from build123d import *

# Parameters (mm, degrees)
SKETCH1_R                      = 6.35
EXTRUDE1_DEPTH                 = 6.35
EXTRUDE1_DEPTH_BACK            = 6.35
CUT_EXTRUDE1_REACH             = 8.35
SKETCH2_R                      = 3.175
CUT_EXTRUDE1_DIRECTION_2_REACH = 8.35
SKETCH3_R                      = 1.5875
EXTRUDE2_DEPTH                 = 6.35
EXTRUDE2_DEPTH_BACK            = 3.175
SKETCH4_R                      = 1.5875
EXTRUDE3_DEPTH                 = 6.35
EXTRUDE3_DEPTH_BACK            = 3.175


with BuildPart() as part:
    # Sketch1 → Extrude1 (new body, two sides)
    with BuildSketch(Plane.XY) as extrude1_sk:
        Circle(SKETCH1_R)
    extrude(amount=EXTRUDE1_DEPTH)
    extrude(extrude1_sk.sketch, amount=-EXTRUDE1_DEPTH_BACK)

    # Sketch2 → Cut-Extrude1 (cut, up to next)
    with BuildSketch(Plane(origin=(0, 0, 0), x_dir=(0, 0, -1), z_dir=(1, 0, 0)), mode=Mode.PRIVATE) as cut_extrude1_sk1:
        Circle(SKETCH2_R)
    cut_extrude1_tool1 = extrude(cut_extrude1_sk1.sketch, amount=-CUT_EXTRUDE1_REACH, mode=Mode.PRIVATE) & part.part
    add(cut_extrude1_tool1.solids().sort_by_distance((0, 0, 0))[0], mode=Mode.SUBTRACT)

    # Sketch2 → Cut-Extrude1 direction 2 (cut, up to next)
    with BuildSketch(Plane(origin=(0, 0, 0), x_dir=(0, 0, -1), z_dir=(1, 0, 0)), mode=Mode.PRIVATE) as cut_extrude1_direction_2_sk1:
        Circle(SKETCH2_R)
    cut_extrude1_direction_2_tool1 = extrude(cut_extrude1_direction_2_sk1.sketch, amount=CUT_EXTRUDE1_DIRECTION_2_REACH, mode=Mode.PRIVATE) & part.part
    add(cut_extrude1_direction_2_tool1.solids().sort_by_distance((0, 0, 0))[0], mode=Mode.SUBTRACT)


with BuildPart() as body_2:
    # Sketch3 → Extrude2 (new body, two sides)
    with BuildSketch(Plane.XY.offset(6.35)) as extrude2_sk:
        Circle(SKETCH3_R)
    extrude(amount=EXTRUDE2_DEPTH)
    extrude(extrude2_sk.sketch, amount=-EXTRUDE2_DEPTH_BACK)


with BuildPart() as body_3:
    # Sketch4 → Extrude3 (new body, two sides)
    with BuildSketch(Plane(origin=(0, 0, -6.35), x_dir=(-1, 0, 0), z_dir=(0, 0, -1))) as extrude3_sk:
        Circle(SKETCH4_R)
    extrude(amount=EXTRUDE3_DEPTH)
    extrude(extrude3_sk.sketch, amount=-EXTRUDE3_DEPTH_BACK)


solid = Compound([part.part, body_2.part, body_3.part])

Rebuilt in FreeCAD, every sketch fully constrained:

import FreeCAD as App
import Part
import Sketcher

V = App.Vector
Q = App.Units.Quantity

doc = App.newDocument("Part")
body = doc.addObject("PartDesign::Body", "Body")

# Sketch on XY plane
sketch1 = body.newObject("Sketcher::SketchObject", "Sketch")
sketch1.AttachmentSupport = (doc.getObject("XY_Plane"), [""])
sketch1.MapMode = "FlatFace"
sketch1.addGeometry(Part.Circle(V(0, 0, 0), V(0, 0, 1), 6.35), False)
sketch1.addConstraint([
    Sketcher.Constraint("Coincident", 0, 3, -1, 1),
    Sketcher.Constraint("Diameter", 0, Q("0.5 in")),
])
pad1 = body.newObject("PartDesign::Pad", "Pad")
pad1.Profile = sketch1
pad1.Type = "TwoLengths"
pad1.Length = Q("0.25 in")
pad1.Length2 = Q("0.25 in")

# Sketch on YZ plane
sketch2 = body.newObject("Sketcher::SketchObject", "Sketch001")
sketch2.AttachmentSupport = (doc.getObject("YZ_Plane"), [""])
sketch2.MapMode = "FlatFace"
sketch2.addGeometry(Part.Circle(V(0, 0, 0), V(0, 0, 1), 3.175), False)
sketch2.addConstraint([
    Sketcher.Constraint("Coincident", 0, 3, -1, 1),
    Sketcher.Constraint("Diameter", 0, Q("0.25 in")),
])
pocket1 = body.newObject("PartDesign::Pocket", "Pocket")
pocket1.Profile = sketch2
pocket1.Type = "UpToFirst"

# Sketch on YZ plane
sketch3 = body.newObject("Sketcher::SketchObject", "Sketch002")
sketch3.AttachmentSupport = (doc.getObject("YZ_Plane"), [""])
sketch3.MapMode = "FlatFace"
sketch3.addGeometry(Part.Circle(V(0, 0, 0), V(0, 0, 1), 3.175), False)
sketch3.addConstraint([
    Sketcher.Constraint("Coincident", 0, 3, -1, 1),
    Sketcher.Constraint("Diameter", 0, Q("0.25 in")),
])
pocket2 = body.newObject("PartDesign::Pocket", "Pocket001")
pocket2.Profile = sketch3
pocket2.Length = Q("0.25 in")
pocket2.Reversed = True
body2 = doc.addObject("PartDesign::Body", "Body001")

# Sketch on XY plane
sketch4 = body2.newObject("Sketcher::SketchObject", "Sketch003")
sketch4.AttachmentSupport = (doc.getObject("XY_Plane001"), [""])
sketch4.MapMode = "FlatFace"
sketch4.AttachmentOffset = App.Placement(V(0, 0, 0.25 * 25.4), App.Rotation())
sketch4.addGeometry(Part.Circle(V(0, 0, 0), V(0, 0, 1), 1.5875), False)
sketch4.addConstraint([
    Sketcher.Constraint("Coincident", 0, 3, -1, 1),
    Sketcher.Constraint("Diameter", 0, Q("0.125 in")),
])
pad2 = body2.newObject("PartDesign::Pad", "Pad001")
pad2.Profile = sketch4
pad2.Type = "TwoLengths"
pad2.Length = Q("0.25 in")
pad2.Length2 = Q("0.125 in")
body3 = doc.addObject("PartDesign::Body", "Body002")

# Sketch on XY plane
sketch5 = body3.newObject("Sketcher::SketchObject", "Sketch004")
sketch5.AttachmentSupport = (doc.getObject("XY_Plane002"), [""])
sketch5.MapMode = "FlatFace"
sketch5.AttachmentOffset = App.Placement(V(0, 0, -0.25 * 25.4), App.Rotation())
sketch5.addGeometry(Part.Circle(V(0, 0, 0), V(0, 0, 1), 1.5875), False)
sketch5.addConstraint([
    Sketcher.Constraint("Coincident", 0, 3, -1, 1),
    Sketcher.Constraint("Diameter", 0, Q("0.125 in")),
])
pad3 = body3.newObject("PartDesign::Pad", "Pad002")
pad3.Profile = sketch5
pad3.Type = "TwoLengths"
pad3.Length = Q("0.25 in")
pad3.Length2 = Q("0.125 in")
pad3.Reversed = True

doc.recompute()
